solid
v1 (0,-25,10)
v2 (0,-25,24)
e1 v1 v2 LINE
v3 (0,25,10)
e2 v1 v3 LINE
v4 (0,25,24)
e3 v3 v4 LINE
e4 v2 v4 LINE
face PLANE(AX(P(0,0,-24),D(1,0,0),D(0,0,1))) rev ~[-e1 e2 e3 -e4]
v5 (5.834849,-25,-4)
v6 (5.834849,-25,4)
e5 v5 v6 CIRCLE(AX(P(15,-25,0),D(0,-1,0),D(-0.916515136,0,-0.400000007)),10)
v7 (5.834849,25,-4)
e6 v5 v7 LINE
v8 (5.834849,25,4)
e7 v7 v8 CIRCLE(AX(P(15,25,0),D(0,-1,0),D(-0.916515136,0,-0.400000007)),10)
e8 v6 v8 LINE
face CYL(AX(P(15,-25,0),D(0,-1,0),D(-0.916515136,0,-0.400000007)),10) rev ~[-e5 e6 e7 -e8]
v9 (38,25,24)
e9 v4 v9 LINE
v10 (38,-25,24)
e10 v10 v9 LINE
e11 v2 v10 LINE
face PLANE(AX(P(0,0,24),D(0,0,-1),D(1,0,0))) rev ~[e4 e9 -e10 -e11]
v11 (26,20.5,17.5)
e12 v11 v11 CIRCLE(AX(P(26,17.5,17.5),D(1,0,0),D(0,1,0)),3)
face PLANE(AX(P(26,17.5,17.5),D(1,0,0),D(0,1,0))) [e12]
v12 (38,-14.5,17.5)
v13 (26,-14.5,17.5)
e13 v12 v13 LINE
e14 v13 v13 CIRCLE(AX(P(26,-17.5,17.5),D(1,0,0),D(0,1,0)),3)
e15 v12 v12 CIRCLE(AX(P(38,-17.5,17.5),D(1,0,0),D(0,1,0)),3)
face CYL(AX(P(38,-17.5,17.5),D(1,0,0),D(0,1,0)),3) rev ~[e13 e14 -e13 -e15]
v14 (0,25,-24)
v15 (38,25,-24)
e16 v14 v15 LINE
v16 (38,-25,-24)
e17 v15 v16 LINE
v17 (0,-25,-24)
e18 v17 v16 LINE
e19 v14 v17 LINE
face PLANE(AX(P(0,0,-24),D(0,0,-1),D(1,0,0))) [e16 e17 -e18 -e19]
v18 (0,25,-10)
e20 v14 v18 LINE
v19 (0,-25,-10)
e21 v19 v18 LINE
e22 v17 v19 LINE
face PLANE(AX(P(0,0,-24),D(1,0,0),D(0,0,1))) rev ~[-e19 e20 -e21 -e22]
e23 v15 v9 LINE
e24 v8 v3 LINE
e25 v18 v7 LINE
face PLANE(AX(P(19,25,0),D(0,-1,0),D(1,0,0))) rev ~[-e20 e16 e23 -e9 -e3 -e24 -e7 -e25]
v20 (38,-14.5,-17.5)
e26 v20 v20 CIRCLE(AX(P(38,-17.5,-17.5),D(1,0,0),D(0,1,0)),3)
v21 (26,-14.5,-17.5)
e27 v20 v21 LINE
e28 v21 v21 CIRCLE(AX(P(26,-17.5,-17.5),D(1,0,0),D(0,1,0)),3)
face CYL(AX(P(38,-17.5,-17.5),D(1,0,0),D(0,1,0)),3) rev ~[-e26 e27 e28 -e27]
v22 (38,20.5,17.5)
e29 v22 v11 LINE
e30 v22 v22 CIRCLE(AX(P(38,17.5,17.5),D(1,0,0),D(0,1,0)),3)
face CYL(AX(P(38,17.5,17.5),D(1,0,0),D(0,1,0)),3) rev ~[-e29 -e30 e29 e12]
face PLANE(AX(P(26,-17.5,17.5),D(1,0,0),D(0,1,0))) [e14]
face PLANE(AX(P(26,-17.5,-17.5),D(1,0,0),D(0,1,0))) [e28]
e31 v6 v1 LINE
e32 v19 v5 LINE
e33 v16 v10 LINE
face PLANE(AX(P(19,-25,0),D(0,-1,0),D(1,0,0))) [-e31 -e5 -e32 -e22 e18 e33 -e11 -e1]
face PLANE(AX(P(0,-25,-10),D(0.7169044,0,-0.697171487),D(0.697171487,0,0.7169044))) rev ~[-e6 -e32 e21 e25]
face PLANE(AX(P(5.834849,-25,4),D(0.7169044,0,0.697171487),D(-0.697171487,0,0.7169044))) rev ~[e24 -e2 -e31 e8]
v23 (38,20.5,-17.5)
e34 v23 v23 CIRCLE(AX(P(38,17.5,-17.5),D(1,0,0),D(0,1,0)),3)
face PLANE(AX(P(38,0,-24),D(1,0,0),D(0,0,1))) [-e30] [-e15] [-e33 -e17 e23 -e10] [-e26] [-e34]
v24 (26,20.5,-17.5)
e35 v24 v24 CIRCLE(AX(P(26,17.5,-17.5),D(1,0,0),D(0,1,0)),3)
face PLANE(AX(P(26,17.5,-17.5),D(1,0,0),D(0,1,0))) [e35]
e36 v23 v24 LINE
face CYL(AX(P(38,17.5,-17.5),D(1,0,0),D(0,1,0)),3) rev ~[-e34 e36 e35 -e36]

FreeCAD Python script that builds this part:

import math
import FreeCAD as App
import Part
import Sketcher

V = App.Vector


def add_polygon(sketch, points):
    """Adds a closed chain of lines whose ends are joined by coincident constraints."""
    first, n = sketch.GeometryCount, len(points)
    for a, b in zip(points, points[1:] + points[:1]):
        sketch.addGeometry(Part.LineSegment(App.Vector(*a, 0), App.Vector(*b, 0)), False)
    for i in range(n):
        sketch.addConstraint(Sketcher.Constraint("Coincident", first + i, 2, first + (i + 1) % n, 1))

doc = App.newDocument("Part")
body = doc.addObject("PartDesign::Body", "Body")

# Sketch on XZ plane
sketch1 = doc.addObject("Sketcher::SketchObject", "Sketch")
body.addObject(sketch1)
sketch1.AttachmentSupport = (doc.XZ_Plane, [""])
sketch1.MapMode = "FlatFace"
add_polygon(sketch1, [(0, 24), (0, -24), (38, -24), (38, 24)])  # lines 0-3
sketch1.addConstraint([
    Sketcher.Constraint("Vertical", 0),
    Sketcher.Constraint("Horizontal", 1),
    Sketcher.Constraint("Vertical", 2),
    Sketcher.Constraint("Horizontal", 3),
    Sketcher.Constraint("Symmetric", 0, 2, 3, 2, -1, 1),
    Sketcher.Constraint("DistanceX", 1, 1, 1, 2, 38.0),
    Sketcher.Constraint("DistanceY", 0, 2, 0, 1, 48.0),
])
pad1 = doc.addObject("PartDesign::Pad", "Pad")
body.addObject(pad1)
pad1.Profile = sketch1
pad1.Length = 50
pad1.Midplane = True

# Sketch on XZ plane
sketch2 = doc.addObject("Sketcher::SketchObject", "Sketch001")
body.addObject(sketch2)
sketch2.AttachmentSupport = (doc.XZ_Plane, [""])
sketch2.MapMode = "FlatFace"
sketch2.AttachmentOffset = App.Placement(V(0, 0, 25), App.Rotation())
sketch2.addGeometry([
    Part.LineSegment(V(0, -10, 0), V(6, -4, 0)),
    Part.ArcOfCircle(Part.Circle(V(15, 0, 0), V(0, 0, 1), 10), math.radians(-156), math.radians(156)),
    Part.LineSegment(V(6, 4, 0), V(0, 10, 0)),
    Part.LineSegment(V(0, 10, 0), V(0, -10, 0)),
], False)
sketch2.addConstraint([
    Sketcher.Constraint("Coincident", 0, 2, 1, 1),
    Sketcher.Constraint("Coincident", 1, 2, 2, 1),
    Sketcher.Constraint("Coincident", 2, 2, 3, 1),
    Sketcher.Constraint("Coincident", 3, 2, 0, 1),
    Sketcher.Constraint("Vertical", 3),
    Sketcher.Constraint("Symmetric", 2, 2, 3, 2, -1, 1),
    Sketcher.Constraint("Symmetric", 0, 2, 1, 2, -1),
    Sketcher.Constraint("Radius", 1, 10.0),
    Sketcher.Constraint("DistanceY", 3, 2, 3, 1, 20.0),
    Sketcher.Constraint("DistanceX", -1, 1, 1, 3, 15.0),
    Sketcher.Constraint("DistanceY", 0, 2, -1, 1, 4.0),
])
pocket1 = doc.addObject("PartDesign::Pocket", "Pocket")
body.addObject(pocket1)
pocket1.Profile = sketch2
pocket1.Length = 50

# Sketch on YZ plane
sketch3 = doc.addObject("Sketcher::SketchObject", "Sketch002")
body.addObject(sketch3)
sketch3.AttachmentSupport = (doc.YZ_Plane, [""])
sketch3.MapMode = "FlatFace"
sketch3.AttachmentOffset = App.Placement(V(0, 0, 38), App.Rotation())
sketch3.addGeometry([
    Part.Circle(V(-17.5, 17.5, 0), V(0, 0, 1), 3),
    Part.Circle(V(17.5, 17.5, 0), V(0, 0, 1), 3),
    Part.Circle(V(17.5, -17.5, 0), V(0, 0, 1), 3),
    Part.Circle(V(-17.5, -17.5, 0), V(0, 0, 1), 3),
], False)
sketch3.addConstraint([
    Sketcher.Constraint("Equal", 0, 1),
    Sketcher.Constraint("Equal", 1, 2),
    Sketcher.Constraint("Equal", 2, 3),
    Sketcher.Constraint("Symmetric", 0, 3, 2, 3, -1, 1),
    Sketcher.Constraint("Symmetric", 1, 3, 3, 3, -1, 1),
    Sketcher.Constraint("Symmetric", 0, 3, 1, 3, -2),
    Sketcher.Constraint("Diameter", 0, 6.0),
    Sketcher.Constraint("DistanceX", 0, 3, 1, 3, 35.0),
    Sketcher.Constraint("DistanceY", 2, 3, 1, 3, 35.0),
])
pocket2 = doc.addObject("PartDesign::Pocket", "Pocket001")
body.addObject(pocket2)
pocket2.Profile = sketch3
pocket2.Length = 12

doc.recompute()
